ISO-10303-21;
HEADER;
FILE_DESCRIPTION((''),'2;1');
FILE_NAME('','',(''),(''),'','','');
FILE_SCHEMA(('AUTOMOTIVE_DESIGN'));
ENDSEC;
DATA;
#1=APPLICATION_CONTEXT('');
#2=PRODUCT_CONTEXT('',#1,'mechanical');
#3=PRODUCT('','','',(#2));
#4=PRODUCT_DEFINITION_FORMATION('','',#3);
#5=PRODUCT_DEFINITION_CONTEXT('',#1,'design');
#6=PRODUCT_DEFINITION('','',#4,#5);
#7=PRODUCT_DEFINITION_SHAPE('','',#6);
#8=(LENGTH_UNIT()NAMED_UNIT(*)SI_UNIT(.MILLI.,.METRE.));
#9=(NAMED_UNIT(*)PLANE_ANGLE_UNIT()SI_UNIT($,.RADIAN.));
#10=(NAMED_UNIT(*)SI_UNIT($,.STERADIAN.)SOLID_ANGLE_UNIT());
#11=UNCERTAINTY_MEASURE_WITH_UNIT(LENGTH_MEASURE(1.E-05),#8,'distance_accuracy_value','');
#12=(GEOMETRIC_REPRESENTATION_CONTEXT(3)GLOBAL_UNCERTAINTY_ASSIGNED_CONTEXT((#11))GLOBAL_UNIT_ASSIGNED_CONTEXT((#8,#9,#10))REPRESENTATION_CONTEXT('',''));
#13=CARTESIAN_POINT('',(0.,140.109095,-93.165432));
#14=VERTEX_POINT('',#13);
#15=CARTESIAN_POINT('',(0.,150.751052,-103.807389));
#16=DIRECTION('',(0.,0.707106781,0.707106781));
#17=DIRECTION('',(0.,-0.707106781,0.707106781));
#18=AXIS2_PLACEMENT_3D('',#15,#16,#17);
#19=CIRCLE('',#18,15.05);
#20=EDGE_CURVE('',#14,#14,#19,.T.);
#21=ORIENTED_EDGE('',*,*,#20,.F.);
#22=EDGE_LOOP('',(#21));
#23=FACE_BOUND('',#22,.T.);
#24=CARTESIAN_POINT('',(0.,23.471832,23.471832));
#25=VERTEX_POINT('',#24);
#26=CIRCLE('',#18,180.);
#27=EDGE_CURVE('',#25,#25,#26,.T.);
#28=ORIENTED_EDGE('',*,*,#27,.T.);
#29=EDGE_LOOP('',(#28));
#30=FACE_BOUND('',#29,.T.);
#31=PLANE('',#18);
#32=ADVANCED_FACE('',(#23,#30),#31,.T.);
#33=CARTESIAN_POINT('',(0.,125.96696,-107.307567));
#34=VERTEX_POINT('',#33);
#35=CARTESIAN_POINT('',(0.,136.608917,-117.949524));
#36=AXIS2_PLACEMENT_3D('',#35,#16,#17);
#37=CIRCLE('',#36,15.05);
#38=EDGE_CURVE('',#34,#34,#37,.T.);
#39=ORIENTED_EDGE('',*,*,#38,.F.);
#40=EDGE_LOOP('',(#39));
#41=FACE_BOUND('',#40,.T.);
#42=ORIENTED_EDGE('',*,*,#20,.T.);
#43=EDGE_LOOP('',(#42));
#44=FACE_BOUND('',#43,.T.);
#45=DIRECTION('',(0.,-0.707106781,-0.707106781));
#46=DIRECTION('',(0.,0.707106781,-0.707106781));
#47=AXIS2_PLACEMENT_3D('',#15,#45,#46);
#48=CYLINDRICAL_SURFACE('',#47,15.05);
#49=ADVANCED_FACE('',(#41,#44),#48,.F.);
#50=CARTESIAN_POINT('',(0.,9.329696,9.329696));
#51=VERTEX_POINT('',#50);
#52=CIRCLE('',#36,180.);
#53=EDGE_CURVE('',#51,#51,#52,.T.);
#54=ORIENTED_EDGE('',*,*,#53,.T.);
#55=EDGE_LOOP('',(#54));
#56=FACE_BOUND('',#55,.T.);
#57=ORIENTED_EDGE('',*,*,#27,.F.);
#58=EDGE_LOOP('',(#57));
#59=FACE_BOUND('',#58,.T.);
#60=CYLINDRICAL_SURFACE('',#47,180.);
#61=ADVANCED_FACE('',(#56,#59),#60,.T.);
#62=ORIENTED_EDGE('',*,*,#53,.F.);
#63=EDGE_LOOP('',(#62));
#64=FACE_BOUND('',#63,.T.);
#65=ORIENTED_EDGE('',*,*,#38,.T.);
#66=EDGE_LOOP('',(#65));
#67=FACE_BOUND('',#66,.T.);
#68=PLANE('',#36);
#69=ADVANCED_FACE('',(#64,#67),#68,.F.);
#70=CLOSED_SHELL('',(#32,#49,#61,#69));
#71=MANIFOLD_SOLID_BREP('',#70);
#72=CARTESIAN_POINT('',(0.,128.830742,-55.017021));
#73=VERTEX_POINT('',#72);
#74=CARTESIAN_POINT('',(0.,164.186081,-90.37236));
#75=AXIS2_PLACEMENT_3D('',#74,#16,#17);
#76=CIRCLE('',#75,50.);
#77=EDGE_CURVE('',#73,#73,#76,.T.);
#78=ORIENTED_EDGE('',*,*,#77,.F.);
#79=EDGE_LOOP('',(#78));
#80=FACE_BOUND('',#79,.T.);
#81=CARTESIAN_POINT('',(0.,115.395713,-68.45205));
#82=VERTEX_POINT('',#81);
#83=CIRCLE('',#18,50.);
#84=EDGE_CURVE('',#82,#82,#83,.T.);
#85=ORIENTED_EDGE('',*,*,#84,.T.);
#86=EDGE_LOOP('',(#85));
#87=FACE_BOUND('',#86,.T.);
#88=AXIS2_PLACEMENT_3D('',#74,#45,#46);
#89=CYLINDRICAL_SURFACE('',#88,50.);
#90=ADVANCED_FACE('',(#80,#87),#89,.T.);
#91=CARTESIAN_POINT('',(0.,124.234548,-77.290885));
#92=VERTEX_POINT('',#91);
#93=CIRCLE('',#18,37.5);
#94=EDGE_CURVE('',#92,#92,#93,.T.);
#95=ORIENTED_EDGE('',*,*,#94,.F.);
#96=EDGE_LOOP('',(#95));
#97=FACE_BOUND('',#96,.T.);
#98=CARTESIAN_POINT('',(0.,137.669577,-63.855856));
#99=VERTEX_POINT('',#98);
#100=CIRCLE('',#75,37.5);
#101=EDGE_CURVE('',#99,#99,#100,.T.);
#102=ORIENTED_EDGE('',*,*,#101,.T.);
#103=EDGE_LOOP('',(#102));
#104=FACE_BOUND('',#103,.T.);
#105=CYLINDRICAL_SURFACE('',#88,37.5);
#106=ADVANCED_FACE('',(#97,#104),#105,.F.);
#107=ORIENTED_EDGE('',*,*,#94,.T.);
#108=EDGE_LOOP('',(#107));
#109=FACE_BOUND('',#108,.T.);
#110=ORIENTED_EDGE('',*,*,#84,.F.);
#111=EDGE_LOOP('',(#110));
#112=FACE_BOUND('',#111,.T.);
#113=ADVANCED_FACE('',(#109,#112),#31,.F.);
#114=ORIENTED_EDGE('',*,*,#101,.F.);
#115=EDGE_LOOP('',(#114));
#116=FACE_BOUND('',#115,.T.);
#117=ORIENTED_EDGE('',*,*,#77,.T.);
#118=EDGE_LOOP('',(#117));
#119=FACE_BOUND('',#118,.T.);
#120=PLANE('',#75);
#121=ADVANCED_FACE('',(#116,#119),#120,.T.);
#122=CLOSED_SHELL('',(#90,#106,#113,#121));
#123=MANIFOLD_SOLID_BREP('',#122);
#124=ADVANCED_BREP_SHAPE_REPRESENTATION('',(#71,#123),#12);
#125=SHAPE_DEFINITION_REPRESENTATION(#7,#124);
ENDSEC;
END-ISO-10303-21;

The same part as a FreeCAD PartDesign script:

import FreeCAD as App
import Part
import Sketcher
from FreeCAD import Vector

doc = App.newDocument("Part")
params = doc.addObject("Spreadsheet::Sheet", "Params")
for row, (alias, value) in enumerate([
    ("sketch1_diameter", "360 mm"),
    ("sketch1_diameter2", "30.1 mm"),
    ("pad1_length", "20 mm"),
    ("sketch2_diameter", "100 mm"),
    ("sketch2_diameter2", "75 mm"),
    ("pad2_length", "19 mm"),
], start=1):
    params.set(f"A{row}", alias)
    params.set(f"B{row}", "=" + value)
    params.setAlias(f"B{row}", alias)

body = doc.addObject("PartDesign::Body", "Body")

sketch1 = doc.addObject("Sketcher::SketchObject", "Sketch")
body.addObject(sketch1)
sketch1.Placement = App.Placement(Vector(0, 9.329696, 9.329696), App.Rotation(Vector(1, 0, 0), Vector(0, 0.707106781, -0.707106781), Vector(0, 0.707106781, 0.707106781), "ZXY"))
sketch1.addGeometry(Part.Circle(Vector(0, 180, 0), Vector(0, 0, 1), 180), False)
sketch1.addGeometry(Part.Circle(Vector(0, 180, 0), Vector(0, 0, 1), 15), False)
sketch1.addConstraint(Sketcher.Constraint("Coincident", 1, 3, 0, 3))
sketch1.addConstraint(Sketcher.Constraint("PointOnObject", 0, 3, -2))
sketch1.addConstraint(Sketcher.Constraint("Diameter", 0, 360.0))
sketch1.addConstraint(Sketcher.Constraint("Diameter", 1, 30.1))
sketch1.addConstraint(Sketcher.Constraint("DistanceY", -1, 1, 0, 3, 180.0))
sketch1.setExpression("Constraints[2]", "Params.sketch1_diameter")
sketch1.setExpression("Constraints[3]", "Params.sketch1_diameter2")
pad1 = doc.addObject("PartDesign::Pad", "Pad")
body.addObject(pad1)
pad1.Profile = sketch1
pad1.setExpression("Length", "Params.pad1_length")
body2 = doc.addObject("PartDesign::Body", "Body001")

sketch2 = doc.addObject("Sketcher::SketchObject", "Sketch001")
body2.addObject(sketch2)
sketch2.Placement = App.Placement(Vector(0, 23.471832, 23.471832), App.Rotation(Vector(1, 0, 0), Vector(0, 0.707106781, -0.707106781), Vector(0, 0.707106781, 0.707106781), "ZXY"))
sketch2.addGeometry(Part.Circle(Vector(0, 180, 0), Vector(0, 0, 1), 50), False)
sketch2.addGeometry(Part.Circle(Vector(0, 180, 0), Vector(0, 0, 1), 38), False)
sketch2.addConstraint(Sketcher.Constraint("Coincident", 1, 3, 0, 3))
sketch2.addConstraint(Sketcher.Constraint("PointOnObject", 0, 3, -2))
sketch2.addConstraint(Sketcher.Constraint("Diameter", 0, 100.0))
sketch2.addConstraint(Sketcher.Constraint("Diameter", 1, 75.0))
sketch2.addConstraint(Sketcher.Constraint("DistanceY", -1, 1, 0, 3, 180.0))
sketch2.setExpression("Constraints[2]", "Params.sketch2_diameter")
sketch2.setExpression("Constraints[3]", "Params.sketch2_diameter2")
pad2 = doc.addObject("PartDesign::Pad", "Pad001")
body2.addObject(pad2)
pad2.Profile = sketch2
pad2.setExpression("Length", "Params.pad2_length")

doc.recompute()
